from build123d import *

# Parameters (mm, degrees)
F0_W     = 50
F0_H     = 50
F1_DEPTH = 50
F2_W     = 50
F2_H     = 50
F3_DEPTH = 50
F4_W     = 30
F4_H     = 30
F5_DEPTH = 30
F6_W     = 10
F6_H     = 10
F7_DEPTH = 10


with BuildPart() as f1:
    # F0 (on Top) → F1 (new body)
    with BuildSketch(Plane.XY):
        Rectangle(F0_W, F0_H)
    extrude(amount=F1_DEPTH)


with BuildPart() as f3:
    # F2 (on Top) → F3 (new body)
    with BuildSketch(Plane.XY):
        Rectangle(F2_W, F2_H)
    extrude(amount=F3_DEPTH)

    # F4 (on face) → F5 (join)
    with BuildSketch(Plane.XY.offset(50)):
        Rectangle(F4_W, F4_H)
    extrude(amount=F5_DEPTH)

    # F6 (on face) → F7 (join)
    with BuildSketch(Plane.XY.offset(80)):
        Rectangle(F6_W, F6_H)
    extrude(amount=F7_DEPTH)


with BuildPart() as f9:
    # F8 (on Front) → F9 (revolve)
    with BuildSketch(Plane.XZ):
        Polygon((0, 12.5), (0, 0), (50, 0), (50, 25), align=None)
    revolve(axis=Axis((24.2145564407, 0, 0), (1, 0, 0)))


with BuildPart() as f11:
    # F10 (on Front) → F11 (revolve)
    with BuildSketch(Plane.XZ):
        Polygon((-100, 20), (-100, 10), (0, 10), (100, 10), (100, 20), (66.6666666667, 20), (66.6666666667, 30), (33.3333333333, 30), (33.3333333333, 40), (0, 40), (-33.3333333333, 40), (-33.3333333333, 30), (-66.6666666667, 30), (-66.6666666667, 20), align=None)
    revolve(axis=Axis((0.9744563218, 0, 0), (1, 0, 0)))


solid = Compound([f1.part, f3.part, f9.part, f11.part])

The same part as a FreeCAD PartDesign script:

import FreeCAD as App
import Part
import Sketcher
Q = App.Units.Quantity

doc = App.newDocument("Part")
body = doc.addObject("PartDesign::Body", "Body")

sketch1 = body.newObject("Sketcher::SketchObject", "Sketch")
sketch1.AttachmentSupport = (doc.getObject("XY_Plane"), [""])
sketch1.MapMode = "FlatFace"
sketch1.addGeometry([
    Part.LineSegment(App.Vector(-25, 25, 0), App.Vector(-25, -25, 0)),
    Part.LineSegment(App.Vector(-25, -25, 0), App.Vector(25, -25, 0)),
    Part.LineSegment(App.Vector(25, -25, 0), App.Vector(25, 25, 0)),
    Part.LineSegment(App.Vector(25, 25, 0), App.Vector(-25, 25, 0)),
], False)
sketch1.addConstraint([
    Sketcher.Constraint("Coincident", 0, 2, 1, 1),
    Sketcher.Constraint("Coincident", 1, 2, 2, 1),
    Sketcher.Constraint("Coincident", 2, 2, 3, 1),
    Sketcher.Constraint("Coincident", 3, 2, 0, 1),
    Sketcher.Constraint("Vertical", 0),
    Sketcher.Constraint("Horizontal", 1),
    Sketcher.Constraint("Vertical", 2),
    Sketcher.Constraint("Horizontal", 3),
    Sketcher.Constraint("Symmetric", 0, 2, 2, 2, -1, 1),
    Sketcher.Constraint("Equal", 3, 0),
    Sketcher.Constraint("DistanceX", 1, 1, 1, 2, Q("50 mm")),
])
pad1 = body.newObject("PartDesign::Pad", "Pad")
pad1.Profile = sketch1
pad1.Length = 50
body2 = doc.addObject("PartDesign::Body", "Body001")

sketch2 = body2.newObject("Sketcher::SketchObject", "Sketch001")
sketch2.AttachmentSupport = (doc.getObject("XY_Plane001"), [""])
sketch2.MapMode = "FlatFace"
sketch2.addGeometry([
    Part.LineSegment(App.Vector(-25, 25, 0), App.Vector(-25, -25, 0)),
    Part.LineSegment(App.Vector(-25, -25, 0), App.Vector(25, -25, 0)),
    Part.LineSegment(App.Vector(25, -25, 0), App.Vector(25, 25, 0)),
    Part.LineSegment(App.Vector(25, 25, 0), App.Vector(-25, 25, 0)),
], False)
sketch2.addConstraint([
    Sketcher.Constraint("Coincident", 0, 2, 1, 1),
    Sketcher.Constraint("Coincident", 1, 2, 2, 1),
    Sketcher.Constraint("Coincident", 2, 2, 3, 1),
    Sketcher.Constraint("Coincident", 3, 2, 0, 1),
    Sketcher.Constraint("Vertical", 0),
    Sketcher.Constraint("Horizontal", 1),
    Sketcher.Constraint("Vertical", 2),
    Sketcher.Constraint("Horizontal", 3),
    Sketcher.Constraint("Symmetric", 0, 2, 2, 2, -1, 1),
    Sketcher.Constraint("Equal", 3, 0),
    Sketcher.Constraint("DistanceX", 1, 1, 1, 2, Q("50 mm")),
])
pad2 = body2.newObject("PartDesign::Pad", "Pad001")
pad2.Profile = sketch2
pad2.Length = 50

sketch3 = body2.newObject("Sketcher::SketchObject", "Sketch002")
sketch3.AttachmentSupport = (doc.getObject("XY_Plane001"), [""])
sketch3.MapMode = "FlatFace"
sketch3.AttachmentOffset = App.Placement(App.Vector(0, 0, 50), App.Rotation())
sketch3.addGeometry([
    Part.LineSegment(App.Vector(-15, 15, 0), App.Vector(-15, -15, 0)),
    Part.LineSegment(App.Vector(-15, -15, 0), App.Vector(15, -15, 0)),
    Part.LineSegment(App.Vector(15, -15, 0), App.Vector(15, 15, 0)),
    Part.LineSegment(App.Vector(15, 15, 0), App.Vector(-15, 15, 0)),
], False)
sketch3.addConstraint([
    Sketcher.Constraint("Coincident", 0, 2, 1, 1),
    Sketcher.Constraint("Coincident", 1, 2, 2, 1),
    Sketcher.Constraint("Coincident", 2, 2, 3, 1),
    Sketcher.Constraint("Coincident", 3, 2, 0, 1),
    Sketcher.Constraint("Vertical", 0),
    Sketcher.Constraint("Horizontal", 1),
    Sketcher.Constraint("Vertical", 2),
    Sketcher.Constraint("Horizontal", 3),
    Sketcher.Constraint("Symmetric", 0, 2, 2, 2, -1, 1),
    Sketcher.Constraint("Equal", 3, 0),
    Sketcher.Constraint("DistanceX", 1, 1, 1, 2, Q("30 mm")),
])
pad3 = body2.newObject("PartDesign::Pad", "Pad002")
pad3.Profile = sketch3
pad3.Length = 30

sketch4 = body2.newObject("Sketcher::SketchObject", "Sketch003")
sketch4.AttachmentSupport = (doc.getObject("XY_Plane001"), [""])
sketch4.MapMode = "FlatFace"
sketch4.AttachmentOffset = App.Placement(App.Vector(0, 0, 80), App.Rotation())
sketch4.addGeometry([
    Part.LineSegment(App.Vector(-5, 5, 0), App.Vector(-5, -5, 0)),
    Part.LineSegment(App.Vector(-5, -5, 0), App.Vector(5, -5, 0)),
    Part.LineSegment(App.Vector(5, -5, 0), App.Vector(5, 5, 0)),
    Part.LineSegment(App.Vector(5, 5, 0), App.Vector(-5, 5, 0)),
], False)
sketch4.addConstraint([
    Sketcher.Constraint("Coincident", 0, 2, 1, 1),
    Sketcher.Constraint("Coincident", 1, 2, 2, 1),
    Sketcher.Constraint("Coincident", 2, 2, 3, 1),
    Sketcher.Constraint("Coincident", 3, 2, 0, 1),
    Sketcher.Constraint("Vertical", 0),
    Sketcher.Constraint("Horizontal", 1),
    Sketcher.Constraint("Vertical", 2),
    Sketcher.Constraint("Horizontal", 3),
    Sketcher.Constraint("Symmetric", 0, 2, 2, 2, -1, 1),
    Sketcher.Constraint("Equal", 3, 0),
    Sketcher.Constraint("DistanceX", 1, 1, 1, 2, Q("10 mm")),
])
pad4 = body2.newObject("PartDesign::Pad", "Pad003")
pad4.Profile = sketch4
pad4.Length = 10
body3 = doc.addObject("PartDesign::Body", "Body002")

sketch5 = body3.newObject("Sketcher::SketchObject", "Sketch004")
sketch5.AttachmentSupport = (doc.getObject("XZ_Plane002"), [""])
sketch5.MapMode = "FlatFace"
sketch5.addGeometry([
    Part.LineSegment(App.Vector(0, 12.5, 0), App.Vector(0, 0, 0)),
    Part.LineSegment(App.Vector(0, 0, 0), App.Vector(50, 0, 0)),
    Part.LineSegment(App.Vector(50, 0, 0), App.Vector(50, 25, 0)),
    Part.LineSegment(App.Vector(50, 25, 0), App.Vector(0, 12.5, 0)),
], False)
sketch5.addConstraint([
    Sketcher.Constraint("Coincident", 0, 2, 1, 1),
    Sketcher.Constraint("Coincident", 1, 2, 2, 1),
    Sketcher.Constraint("Coincident", 2, 2, 3, 1),
    Sketcher.Constraint("Coincident", 3, 2, 0, 1),
    Sketcher.Constraint("Vertical", 0),
    Sketcher.Constraint("Horizontal", 1),
    Sketcher.Constraint("Vertical", 2),
    Sketcher.Constraint("Coincident", 0, 2, -1, 1),
    Sketcher.Constraint("DistanceX", 1, 1, 1, 2, Q("50 mm")),
    Sketcher.Constraint("DistanceY", 2, 1, 2, 2, Q("25 mm")),
    Sketcher.Constraint("DistanceY", 0, 2, 0, 1, Q("12.5 mm")),
])
revolution = body3.newObject("PartDesign::Revolution", "Revolution")
revolution.Profile = sketch5
revolution.ReferenceAxis = (sketch5, ["H_Axis"])
revolution.Angle = 360
body4 = doc.addObject("PartDesign::Body", "Body003")

sketch6 = body4.newObject("Sketcher::SketchObject", "Sketch005")
sketch6.AttachmentSupport = (doc.getObject("XZ_Plane003"), [""])
sketch6.MapMode = "FlatFace"
sketch6.addGeometry([
    Part.LineSegment(App.Vector(-100, 20, 0), App.Vector(-100, 10, 0)),
    Part.LineSegment(App.Vector(-100, 10, 0), App.Vector(100, 10, 0)),
    Part.LineSegment(App.Vector(100, 10, 0), App.Vector(100, 20, 0)),
    Part.LineSegment(App.Vector(100, 20, 0), App.Vector(66.666667, 20, 0)),
    Part.LineSegment(App.Vector(66.666667, 20, 0), App.Vector(66.666667, 30, 0)),
    Part.LineSegment(App.Vector(66.666667, 30, 0), App.Vector(33.333333, 30, 0)),
    Part.LineSegment(App.Vector(33.333333, 30, 0), App.Vector(33.333333, 40, 0)),
    Part.LineSegment(App.Vector(33.333333, 40, 0), App.Vector(-33.333333, 40, 0)),
    Part.LineSegment(App.Vector(-33.333333, 40, 0), App.Vector(-33.333333, 30, 0)),
    Part.LineSegment(App.Vector(-33.333333, 30, 0), App.Vector(-66.666667, 30, 0)),
    Part.LineSegment(App.Vector(-66.666667, 30, 0), App.Vector(-66.666667, 20, 0)),
    Part.LineSegment(App.Vector(-66.666667, 20, 0), App.Vector(-100, 20, 0)),
], False)
sketch6.addConstraint([
    Sketcher.Constraint("Coincident", 0, 2, 1, 1),
    Sketcher.Constraint("Coincident", 1, 2, 2, 1),
    Sketcher.Constraint("Coincident", 2, 2, 3, 1),
    Sketcher.Constraint("Coincident", 3, 2, 4, 1),
    Sketcher.Constraint("Coincident", 4, 2, 5, 1),
    Sketcher.Constraint("Coincident", 5, 2, 6, 1),
    Sketcher.Constraint("Coincident", 6, 2, 7, 1),
    Sketcher.Constraint("Coincident", 7, 2, 8, 1),
    Sketcher.Constraint("Coincident", 8, 2, 9, 1),
    Sketcher.Constraint("Coincident", 9, 2, 10, 1),
    Sketcher.Constraint("Coincident", 10, 2, 11, 1),
    Sketcher.Constraint("Coincident", 11, 2, 0, 1),
    Sketcher.Constraint("Vertical", 0),
    Sketcher.Constraint("Horizontal", 1),
    Sketcher.Constraint("Vertical", 2),
    Sketcher.Constraint("Horizontal", 3),
    Sketcher.Constraint("Vertical", 4),
    Sketcher.Constraint("Horizontal", 5),
    Sketcher.Constraint("Vertical", 6),
    Sketcher.Constraint("Horizontal", 7),
    Sketcher.Constraint("Vertical", 8),
    Sketcher.Constraint("Horizontal", 9),
    Sketcher.Constraint("Vertical", 10),
    Sketcher.Constraint("Horizontal", 11),
    Sketcher.Constraint("Symmetric", 5, 2, 8, 2, -2),
    Sketcher.Constraint("Symmetric", 3, 2, 10, 2, -2),
    Sketcher.Constraint("Equal", 3, 5),
    Sketcher.Constraint("Equal", 9, 11),
    Sketcher.Constraint("Equal", 2, 4),
    Sketcher.Constraint("Equal", 4, 6),
    Sketcher.Constraint("DistanceX", 1, 1, 1, 2, Q("200 mm")),
    Sketcher.Constraint("DistanceY", 0, 2, 0, 1, Q("10 mm")),
    Sketcher.Constraint("DistanceY", -1, 1, 0, 2, Q("10 mm")),
    Sketcher.Constraint("DistanceX", 7, 2, 4, 2, Q("100 mm")),
])
revolution2 = body4.newObject("PartDesign::Revolution", "Revolution001")
revolution2.Profile = sketch6
revolution2.ReferenceAxis = (sketch6, ["H_Axis"])
revolution2.Angle = 360

doc.recompute()
